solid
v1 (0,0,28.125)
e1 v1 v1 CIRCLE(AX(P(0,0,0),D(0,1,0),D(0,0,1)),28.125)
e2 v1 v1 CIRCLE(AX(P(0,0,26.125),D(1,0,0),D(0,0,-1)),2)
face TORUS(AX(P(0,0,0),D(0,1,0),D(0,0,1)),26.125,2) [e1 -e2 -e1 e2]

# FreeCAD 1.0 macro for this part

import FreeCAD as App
import Part
import Sketcher
from FreeCAD import Vector

doc = App.newDocument("Part")
body = doc.addObject("PartDesign::Body", "Body")

sketch1 = doc.addObject("Sketcher::SketchObject", "Sketch")
body.addObject(sketch1)
sketch1.AttachmentSupport = (doc.XY_Plane, [""])
sketch1.MapMode = "FlatFace"
sketch1.addGeometry(Part.Circle(Vector(26.1, 0, 0), Vector(0, 0, 1), 2), False)
sketch1.addConstraint([
    Sketcher.Constraint("PointOnObject", 0, 3, -1),
    Sketcher.Constraint("Diameter", 0, 4.0),
    Sketcher.Constraint("DistanceX", -1, 1, 0, 3, 26.125),
])

sketch2 = doc.addObject("Sketcher::SketchObject", "Sketch001")
body.addObject(sketch2)
sketch2.AttachmentSupport = (doc.XZ_Plane, [""])
sketch2.MapMode = "FlatFace"
sketch2.addGeometry(Part.Circle(Vector(0, 0, 0), Vector(0, 0, 1), 26), False)
sketch2.addConstraint([
    Sketcher.Constraint("Coincident", 0, 3, -1, 1),
    Sketcher.Constraint("Diameter", 0, 52.25),
])
doc.recompute()

additivepipe = doc.addObject("PartDesign::AdditivePipe", "AdditivePipe")
body.addObject(additivepipe)
additivepipe.Profile = sketch1
additivepipe.Spine = (sketch2, ["Edge1"])

doc.recompute()
